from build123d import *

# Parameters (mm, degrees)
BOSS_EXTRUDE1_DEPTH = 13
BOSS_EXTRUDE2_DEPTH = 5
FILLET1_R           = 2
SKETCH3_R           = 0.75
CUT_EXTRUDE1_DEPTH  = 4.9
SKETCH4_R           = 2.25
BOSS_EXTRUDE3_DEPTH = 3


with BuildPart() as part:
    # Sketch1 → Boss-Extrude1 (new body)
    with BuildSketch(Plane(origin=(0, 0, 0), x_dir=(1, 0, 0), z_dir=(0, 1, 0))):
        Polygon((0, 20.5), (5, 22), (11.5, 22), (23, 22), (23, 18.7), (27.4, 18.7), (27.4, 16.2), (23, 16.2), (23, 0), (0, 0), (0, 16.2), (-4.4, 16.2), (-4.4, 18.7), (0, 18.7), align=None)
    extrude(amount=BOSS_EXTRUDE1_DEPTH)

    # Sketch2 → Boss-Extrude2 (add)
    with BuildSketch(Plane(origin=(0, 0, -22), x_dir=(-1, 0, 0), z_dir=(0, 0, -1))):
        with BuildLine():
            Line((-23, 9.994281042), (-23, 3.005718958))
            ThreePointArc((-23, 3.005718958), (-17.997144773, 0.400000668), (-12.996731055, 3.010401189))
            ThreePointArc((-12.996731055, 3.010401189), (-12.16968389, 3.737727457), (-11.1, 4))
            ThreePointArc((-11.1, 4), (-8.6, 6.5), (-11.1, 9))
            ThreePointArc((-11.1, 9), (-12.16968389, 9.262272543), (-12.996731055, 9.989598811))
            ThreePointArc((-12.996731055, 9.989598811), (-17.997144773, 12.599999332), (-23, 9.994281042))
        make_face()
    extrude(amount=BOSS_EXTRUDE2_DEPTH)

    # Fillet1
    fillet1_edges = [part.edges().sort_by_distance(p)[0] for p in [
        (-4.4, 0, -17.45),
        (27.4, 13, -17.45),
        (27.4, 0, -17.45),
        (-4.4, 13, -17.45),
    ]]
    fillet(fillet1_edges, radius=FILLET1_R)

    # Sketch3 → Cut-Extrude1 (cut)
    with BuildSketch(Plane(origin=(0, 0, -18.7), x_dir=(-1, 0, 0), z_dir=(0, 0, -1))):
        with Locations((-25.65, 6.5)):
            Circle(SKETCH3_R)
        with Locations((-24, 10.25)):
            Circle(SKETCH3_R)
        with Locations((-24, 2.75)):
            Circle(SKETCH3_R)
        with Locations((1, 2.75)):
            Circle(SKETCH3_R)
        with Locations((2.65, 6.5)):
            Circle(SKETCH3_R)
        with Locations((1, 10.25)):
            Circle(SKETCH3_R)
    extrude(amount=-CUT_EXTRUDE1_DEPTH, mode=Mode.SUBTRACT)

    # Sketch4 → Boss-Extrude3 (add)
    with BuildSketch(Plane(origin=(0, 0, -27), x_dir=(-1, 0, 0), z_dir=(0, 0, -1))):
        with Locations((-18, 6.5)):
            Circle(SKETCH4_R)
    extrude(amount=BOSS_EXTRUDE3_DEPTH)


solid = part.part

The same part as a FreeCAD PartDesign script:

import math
import FreeCAD as App
import Part
import Sketcher
Q = App.Units.Quantity


def edges_at(feature, points):
    """Names of the edges that pass closest to the given points."""
    edges = feature.Shape.Edges
    near = lambda p: min(range(len(edges)), key=lambda i: edges[i].distToShape(Part.Vertex(*p))[0])
    return sorted({f"Edge{near(p) + 1}" for p in points})

doc = App.newDocument("Part")
body = doc.addObject("PartDesign::Body", "Body")

# Sketch on XZ plane
sketch1 = body.newObject("Sketcher::SketchObject", "Sketch")
sketch1.AttachmentSupport = (doc.getObject("XZ_Plane"), [""])
sketch1.MapMode = "FlatFace"
sketch1.addGeometry([
    Part.LineSegment(App.Vector(5, -22, 0), App.Vector(0, -20.5, 0)),  # 0
    Part.LineSegment(App.Vector(0, -20.5, 0), App.Vector(0, -18.7, 0)),  # 1
    Part.LineSegment(App.Vector(0, -18.7, 0), App.Vector(-4.4, -18.7, 0)),  # 2
    Part.LineSegment(App.Vector(-4.4, -18.7, 0), App.Vector(-4.4, -16.2, 0)),  # 3
    Part.LineSegment(App.Vector(-4.4, -16.2, 0), App.Vector(0, -16.2, 0)),  # 4
    Part.LineSegment(App.Vector(0, -16.2, 0), App.Vector(0, 0, 0)),  # 5
    Part.LineSegment(App.Vector(0, 0, 0), App.Vector(23, 0, 0)),  # 6
    Part.LineSegment(App.Vector(23, 0, 0), App.Vector(23, -16.2, 0)),  # 7
    Part.LineSegment(App.Vector(23, -16.2, 0), App.Vector(27.4, -16.2, 0)),  # 8
    Part.LineSegment(App.Vector(27.4, -16.2, 0), App.Vector(27.4, -18.7, 0)),  # 9
    Part.LineSegment(App.Vector(27.4, -18.7, 0), App.Vector(23, -18.7, 0)),  # 10
    Part.LineSegment(App.Vector(23, -18.7, 0), App.Vector(23, -22, 0)),  # 11
    Part.LineSegment(App.Vector(23, -22, 0), App.Vector(5, -22, 0)),  # 12
], False)
sketch1.addConstraint([
    Sketcher.Constraint("Coincident", 0, 2, 1, 1),
    Sketcher.Constraint("Coincident", 1, 2, 2, 1),
    Sketcher.Constraint("Coincident", 2, 2, 3, 1),
    Sketcher.Constraint("Coincident", 3, 2, 4, 1),
    Sketcher.Constraint("Coincident", 4, 2, 5, 1),
    Sketcher.Constraint("Coincident", 5, 2, 6, 1),
    Sketcher.Constraint("Coincident", 6, 2, 7, 1),
    Sketcher.Constraint("Coincident", 7, 2, 8, 1),
    Sketcher.Constraint("Coincident", 8, 2, 9, 1),
    Sketcher.Constraint("Coincident", 9, 2, 10, 1),
    Sketcher.Constraint("Coincident", 10, 2, 11, 1),
    Sketcher.Constraint("Coincident", 11, 2, 12, 1),
    Sketcher.Constraint("Coincident", 12, 2, 0, 1),
    Sketcher.Constraint("Vertical", 1),
    Sketcher.Constraint("Horizontal", 2),
    Sketcher.Constraint("Vertical", 3),
    Sketcher.Constraint("Horizontal", 4),
    Sketcher.Constraint("Vertical", 5),
    Sketcher.Constraint("Horizontal", 6),
    Sketcher.Constraint("Vertical", 7),
    Sketcher.Constraint("Horizontal", 8),
    Sketcher.Constraint("Vertical", 9),
    Sketcher.Constraint("Horizontal", 10),
    Sketcher.Constraint("Vertical", 11),
    Sketcher.Constraint("Horizontal", 12),
    Sketcher.Constraint("Coincident", 5, 2, -1, 1),
    Sketcher.Constraint("PointOnObject", 0, 2, -2),
    Sketcher.Constraint("Horizontal", 4, 2, 7, 2),
    Sketcher.Constraint("Horizontal", 2, 2, 9, 2),
    Sketcher.Constraint("Vertical", 7, 2, 10, 2),
    Sketcher.Constraint("Equal", 4, 8),
    Sketcher.Constraint("DistanceX", 6, 1, 6, 2, Q("23 mm")),
    Sketcher.Constraint("DistanceX", 12, 2, 12, 1, Q("18 mm")),
    Sketcher.Constraint("DistanceX", 2, 2, 2, 1, Q("4.4 mm")),
    Sketcher.Constraint("DistanceY", 1, 1, 1, 2, Q("1.8 mm")),
    Sketcher.Constraint("DistanceY", 3, 1, 3, 2, Q("2.5 mm")),
    Sketcher.Constraint("DistanceY", 5, 1, 5, 2, Q("16.2 mm")),
    Sketcher.Constraint("DistanceY", 11, 2, 11, 1, Q("3.3 mm")),
])
pad1 = body.newObject("PartDesign::Pad", "Pad")
pad1.Profile = sketch1
pad1.Length = 13
pad1.Reversed = True

# Sketch on XY plane
sketch2 = body.newObject("Sketcher::SketchObject", "Sketch001")
sketch2.AttachmentSupport = (doc.getObject("XY_Plane"), [""])
sketch2.MapMode = "FlatFace"
sketch2.AttachmentOffset = App.Placement(App.Vector(0, 0, -22), App.Rotation())
sketch2.addGeometry([
    Part.LineSegment(App.Vector(23, 10, 0), App.Vector(23, 3, 0)),  # 0
    Part.ArcOfCircle(Part.Circle(App.Vector(18, 6.5, 0), App.Vector(0, 0, 1), 6.1), math.radians(-145), math.radians(-35)),  # 1
    Part.ArcOfCircle(Part.Circle(App.Vector(11.1, 1.7, 0), App.Vector(0, 0, 1), 2.3), math.radians(35), math.radians(90)),  # 2
    Part.ArcOfCircle(Part.Circle(App.Vector(11.1, 6.5, 0), App.Vector(0, 0, 1), 2.5), math.radians(90), math.radians(270)),  # 3
    Part.ArcOfCircle(Part.Circle(App.Vector(11.1, 11.3, 0), App.Vector(0, 0, 1), 2.3), math.radians(-90), math.radians(-35)),  # 4
    Part.ArcOfCircle(Part.Circle(App.Vector(18, 6.5, 0), App.Vector(0, 0, 1), 6.1), math.radians(35), math.radians(145)),  # 5
], False)
sketch2.addConstraint([
    Sketcher.Constraint("Coincident", 0, 2, 1, 2),
    Sketcher.Constraint("Tangent", 1, 1, 2, 1),
    Sketcher.Constraint("Tangent", 2, 2, 3, 2),
    Sketcher.Constraint("Tangent", 3, 1, 4, 1),
    Sketcher.Constraint("Tangent", 4, 2, 5, 2),
    Sketcher.Constraint("Coincident", 5, 1, 0, 1),
    Sketcher.Constraint("Vertical", 0),
    Sketcher.Constraint("Coincident", 5, 3, 1, 3),
    Sketcher.Constraint("Equal", 2, 4),
    Sketcher.Constraint("Equal", 1, 5),
    Sketcher.Constraint("Horizontal", 1, 3, 3, 3),
    Sketcher.Constraint("Vertical", 2, 3, 3, 3),
    Sketcher.Constraint("Radius", 1, Q("6.1 mm")),
    Sketcher.Constraint("Radius", 3, Q("2.5 mm")),
    Sketcher.Constraint("DistanceX", -1, 1, 1, 3, Q("18 mm")),
    Sketcher.Constraint("DistanceX", -1, 1, 0, 2, Q("23 mm")),
    Sketcher.Constraint("DistanceY", -1, 1, 2, 2, Q("4 mm")),
    Sketcher.Constraint("DistanceX", -1, 1, 2, 3, Q("11.1 mm")),
])
pad2 = body.newObject("PartDesign::Pad", "Pad001")
pad2.Profile = sketch2
pad2.Length = 5
pad2.Reversed = True
doc.recompute()

fillet = body.newObject("PartDesign::Fillet", "Fillet")
fillet.Base = (pad2, edges_at(pad2, [
    (-4.4, 0, -17.45),
    (27.4, 13, -17.45),
    (27.4, 0, -17.45),
    (-4.4, 13, -17.45),
]))
fillet.Radius = 2

# Sketch on XY plane
sketch3 = body.newObject("Sketcher::SketchObject", "Sketch002")
sketch3.AttachmentSupport = (doc.getObject("XY_Plane"), [""])
sketch3.MapMode = "FlatFace"
sketch3.AttachmentOffset = App.Placement(App.Vector(0, 0, -18.7), App.Rotation())
sketch3.addGeometry([
    Part.Circle(App.Vector(25.6, 6.5, 0), App.Vector(0, 0, 1), 0.8),  # 0
    Part.Circle(App.Vector(24, 10.2, 0), App.Vector(0, 0, 1), 0.8),  # 1
    Part.Circle(App.Vector(24, 2.8, 0), App.Vector(0, 0, 1), 0.8),  # 2
    Part.Circle(App.Vector(-1, 2.8, 0), App.Vector(0, 0, 1), 0.8),  # 3
    Part.Circle(App.Vector(-2.6, 6.5, 0), App.Vector(0, 0, 1), 0.8),  # 4
    Part.Circle(App.Vector(-1, 10.2, 0), App.Vector(0, 0, 1), 0.8),  # 5
], False)
sketch3.addConstraint([
    Sketcher.Constraint("Equal", 0, 1),
    Sketcher.Constraint("Equal", 1, 2),
    Sketcher.Constraint("Equal", 2, 3),
    Sketcher.Constraint("Equal", 3, 4),
    Sketcher.Constraint("Equal", 4, 5),
    Sketcher.Constraint("Horizontal", 2, 3, 3, 3),
    Sketcher.Constraint("Horizontal", 0, 3, 4, 3),
    Sketcher.Constraint("Horizontal", 1, 3, 5, 3),
    Sketcher.Constraint("Vertical", 1, 3, 2, 3),
    Sketcher.Constraint("Vertical", 3, 3, 5, 3),
    Sketcher.Constraint("Diameter", 0, Q("1.5 mm")),
    Sketcher.Constraint("DistanceX", -1, 1, 1, 3, Q("24 mm")),
    Sketcher.Constraint("DistanceX", 3, 3, -1, 1, Q("1 mm")),
    Sketcher.Constraint("DistanceY", -1, 1, 0, 3, Q("6.5 mm")),
    Sketcher.Constraint("DistanceY", 2, 3, 1, 3, Q("7.5 mm")),
    Sketcher.Constraint("DistanceX", 4, 3, 0, 3, Q("28.3 mm")),
    Sketcher.Constraint("DistanceX", -1, 1, 0, 3, Q("25.65 mm")),
    Sketcher.Constraint("DistanceY", -1, 1, 1, 3, Q("10.25 mm")),
])
pocket1 = body.newObject("PartDesign::Pocket", "Pocket")
pocket1.Profile = sketch3
pocket1.Length = 4.9
pocket1.Reversed = True

# Sketch on XY plane
sketch4 = body.newObject("Sketcher::SketchObject", "Sketch003")
sketch4.AttachmentSupport = (doc.getObject("XY_Plane"), [""])
sketch4.MapMode = "FlatFace"
sketch4.AttachmentOffset = App.Placement(App.Vector(0, 0, -27), App.Rotation())
sketch4.addGeometry(Part.Circle(App.Vector(18, 6.5, 0), App.Vector(0, 0, 1), 2.2), False)
sketch4.addConstraint([
    Sketcher.Constraint("Diameter", 0, Q("4.5 mm")),
    Sketcher.Constraint("DistanceX", -1, 1, 0, 3, Q("18 mm")),
    Sketcher.Constraint("DistanceY", -1, 1, 0, 3, Q("6.5 mm")),
])
pad3 = body.newObject("PartDesign::Pad", "Pad002")
pad3.Profile = sketch4
pad3.Length = 3
pad3.Reversed = True

doc.recompute()
